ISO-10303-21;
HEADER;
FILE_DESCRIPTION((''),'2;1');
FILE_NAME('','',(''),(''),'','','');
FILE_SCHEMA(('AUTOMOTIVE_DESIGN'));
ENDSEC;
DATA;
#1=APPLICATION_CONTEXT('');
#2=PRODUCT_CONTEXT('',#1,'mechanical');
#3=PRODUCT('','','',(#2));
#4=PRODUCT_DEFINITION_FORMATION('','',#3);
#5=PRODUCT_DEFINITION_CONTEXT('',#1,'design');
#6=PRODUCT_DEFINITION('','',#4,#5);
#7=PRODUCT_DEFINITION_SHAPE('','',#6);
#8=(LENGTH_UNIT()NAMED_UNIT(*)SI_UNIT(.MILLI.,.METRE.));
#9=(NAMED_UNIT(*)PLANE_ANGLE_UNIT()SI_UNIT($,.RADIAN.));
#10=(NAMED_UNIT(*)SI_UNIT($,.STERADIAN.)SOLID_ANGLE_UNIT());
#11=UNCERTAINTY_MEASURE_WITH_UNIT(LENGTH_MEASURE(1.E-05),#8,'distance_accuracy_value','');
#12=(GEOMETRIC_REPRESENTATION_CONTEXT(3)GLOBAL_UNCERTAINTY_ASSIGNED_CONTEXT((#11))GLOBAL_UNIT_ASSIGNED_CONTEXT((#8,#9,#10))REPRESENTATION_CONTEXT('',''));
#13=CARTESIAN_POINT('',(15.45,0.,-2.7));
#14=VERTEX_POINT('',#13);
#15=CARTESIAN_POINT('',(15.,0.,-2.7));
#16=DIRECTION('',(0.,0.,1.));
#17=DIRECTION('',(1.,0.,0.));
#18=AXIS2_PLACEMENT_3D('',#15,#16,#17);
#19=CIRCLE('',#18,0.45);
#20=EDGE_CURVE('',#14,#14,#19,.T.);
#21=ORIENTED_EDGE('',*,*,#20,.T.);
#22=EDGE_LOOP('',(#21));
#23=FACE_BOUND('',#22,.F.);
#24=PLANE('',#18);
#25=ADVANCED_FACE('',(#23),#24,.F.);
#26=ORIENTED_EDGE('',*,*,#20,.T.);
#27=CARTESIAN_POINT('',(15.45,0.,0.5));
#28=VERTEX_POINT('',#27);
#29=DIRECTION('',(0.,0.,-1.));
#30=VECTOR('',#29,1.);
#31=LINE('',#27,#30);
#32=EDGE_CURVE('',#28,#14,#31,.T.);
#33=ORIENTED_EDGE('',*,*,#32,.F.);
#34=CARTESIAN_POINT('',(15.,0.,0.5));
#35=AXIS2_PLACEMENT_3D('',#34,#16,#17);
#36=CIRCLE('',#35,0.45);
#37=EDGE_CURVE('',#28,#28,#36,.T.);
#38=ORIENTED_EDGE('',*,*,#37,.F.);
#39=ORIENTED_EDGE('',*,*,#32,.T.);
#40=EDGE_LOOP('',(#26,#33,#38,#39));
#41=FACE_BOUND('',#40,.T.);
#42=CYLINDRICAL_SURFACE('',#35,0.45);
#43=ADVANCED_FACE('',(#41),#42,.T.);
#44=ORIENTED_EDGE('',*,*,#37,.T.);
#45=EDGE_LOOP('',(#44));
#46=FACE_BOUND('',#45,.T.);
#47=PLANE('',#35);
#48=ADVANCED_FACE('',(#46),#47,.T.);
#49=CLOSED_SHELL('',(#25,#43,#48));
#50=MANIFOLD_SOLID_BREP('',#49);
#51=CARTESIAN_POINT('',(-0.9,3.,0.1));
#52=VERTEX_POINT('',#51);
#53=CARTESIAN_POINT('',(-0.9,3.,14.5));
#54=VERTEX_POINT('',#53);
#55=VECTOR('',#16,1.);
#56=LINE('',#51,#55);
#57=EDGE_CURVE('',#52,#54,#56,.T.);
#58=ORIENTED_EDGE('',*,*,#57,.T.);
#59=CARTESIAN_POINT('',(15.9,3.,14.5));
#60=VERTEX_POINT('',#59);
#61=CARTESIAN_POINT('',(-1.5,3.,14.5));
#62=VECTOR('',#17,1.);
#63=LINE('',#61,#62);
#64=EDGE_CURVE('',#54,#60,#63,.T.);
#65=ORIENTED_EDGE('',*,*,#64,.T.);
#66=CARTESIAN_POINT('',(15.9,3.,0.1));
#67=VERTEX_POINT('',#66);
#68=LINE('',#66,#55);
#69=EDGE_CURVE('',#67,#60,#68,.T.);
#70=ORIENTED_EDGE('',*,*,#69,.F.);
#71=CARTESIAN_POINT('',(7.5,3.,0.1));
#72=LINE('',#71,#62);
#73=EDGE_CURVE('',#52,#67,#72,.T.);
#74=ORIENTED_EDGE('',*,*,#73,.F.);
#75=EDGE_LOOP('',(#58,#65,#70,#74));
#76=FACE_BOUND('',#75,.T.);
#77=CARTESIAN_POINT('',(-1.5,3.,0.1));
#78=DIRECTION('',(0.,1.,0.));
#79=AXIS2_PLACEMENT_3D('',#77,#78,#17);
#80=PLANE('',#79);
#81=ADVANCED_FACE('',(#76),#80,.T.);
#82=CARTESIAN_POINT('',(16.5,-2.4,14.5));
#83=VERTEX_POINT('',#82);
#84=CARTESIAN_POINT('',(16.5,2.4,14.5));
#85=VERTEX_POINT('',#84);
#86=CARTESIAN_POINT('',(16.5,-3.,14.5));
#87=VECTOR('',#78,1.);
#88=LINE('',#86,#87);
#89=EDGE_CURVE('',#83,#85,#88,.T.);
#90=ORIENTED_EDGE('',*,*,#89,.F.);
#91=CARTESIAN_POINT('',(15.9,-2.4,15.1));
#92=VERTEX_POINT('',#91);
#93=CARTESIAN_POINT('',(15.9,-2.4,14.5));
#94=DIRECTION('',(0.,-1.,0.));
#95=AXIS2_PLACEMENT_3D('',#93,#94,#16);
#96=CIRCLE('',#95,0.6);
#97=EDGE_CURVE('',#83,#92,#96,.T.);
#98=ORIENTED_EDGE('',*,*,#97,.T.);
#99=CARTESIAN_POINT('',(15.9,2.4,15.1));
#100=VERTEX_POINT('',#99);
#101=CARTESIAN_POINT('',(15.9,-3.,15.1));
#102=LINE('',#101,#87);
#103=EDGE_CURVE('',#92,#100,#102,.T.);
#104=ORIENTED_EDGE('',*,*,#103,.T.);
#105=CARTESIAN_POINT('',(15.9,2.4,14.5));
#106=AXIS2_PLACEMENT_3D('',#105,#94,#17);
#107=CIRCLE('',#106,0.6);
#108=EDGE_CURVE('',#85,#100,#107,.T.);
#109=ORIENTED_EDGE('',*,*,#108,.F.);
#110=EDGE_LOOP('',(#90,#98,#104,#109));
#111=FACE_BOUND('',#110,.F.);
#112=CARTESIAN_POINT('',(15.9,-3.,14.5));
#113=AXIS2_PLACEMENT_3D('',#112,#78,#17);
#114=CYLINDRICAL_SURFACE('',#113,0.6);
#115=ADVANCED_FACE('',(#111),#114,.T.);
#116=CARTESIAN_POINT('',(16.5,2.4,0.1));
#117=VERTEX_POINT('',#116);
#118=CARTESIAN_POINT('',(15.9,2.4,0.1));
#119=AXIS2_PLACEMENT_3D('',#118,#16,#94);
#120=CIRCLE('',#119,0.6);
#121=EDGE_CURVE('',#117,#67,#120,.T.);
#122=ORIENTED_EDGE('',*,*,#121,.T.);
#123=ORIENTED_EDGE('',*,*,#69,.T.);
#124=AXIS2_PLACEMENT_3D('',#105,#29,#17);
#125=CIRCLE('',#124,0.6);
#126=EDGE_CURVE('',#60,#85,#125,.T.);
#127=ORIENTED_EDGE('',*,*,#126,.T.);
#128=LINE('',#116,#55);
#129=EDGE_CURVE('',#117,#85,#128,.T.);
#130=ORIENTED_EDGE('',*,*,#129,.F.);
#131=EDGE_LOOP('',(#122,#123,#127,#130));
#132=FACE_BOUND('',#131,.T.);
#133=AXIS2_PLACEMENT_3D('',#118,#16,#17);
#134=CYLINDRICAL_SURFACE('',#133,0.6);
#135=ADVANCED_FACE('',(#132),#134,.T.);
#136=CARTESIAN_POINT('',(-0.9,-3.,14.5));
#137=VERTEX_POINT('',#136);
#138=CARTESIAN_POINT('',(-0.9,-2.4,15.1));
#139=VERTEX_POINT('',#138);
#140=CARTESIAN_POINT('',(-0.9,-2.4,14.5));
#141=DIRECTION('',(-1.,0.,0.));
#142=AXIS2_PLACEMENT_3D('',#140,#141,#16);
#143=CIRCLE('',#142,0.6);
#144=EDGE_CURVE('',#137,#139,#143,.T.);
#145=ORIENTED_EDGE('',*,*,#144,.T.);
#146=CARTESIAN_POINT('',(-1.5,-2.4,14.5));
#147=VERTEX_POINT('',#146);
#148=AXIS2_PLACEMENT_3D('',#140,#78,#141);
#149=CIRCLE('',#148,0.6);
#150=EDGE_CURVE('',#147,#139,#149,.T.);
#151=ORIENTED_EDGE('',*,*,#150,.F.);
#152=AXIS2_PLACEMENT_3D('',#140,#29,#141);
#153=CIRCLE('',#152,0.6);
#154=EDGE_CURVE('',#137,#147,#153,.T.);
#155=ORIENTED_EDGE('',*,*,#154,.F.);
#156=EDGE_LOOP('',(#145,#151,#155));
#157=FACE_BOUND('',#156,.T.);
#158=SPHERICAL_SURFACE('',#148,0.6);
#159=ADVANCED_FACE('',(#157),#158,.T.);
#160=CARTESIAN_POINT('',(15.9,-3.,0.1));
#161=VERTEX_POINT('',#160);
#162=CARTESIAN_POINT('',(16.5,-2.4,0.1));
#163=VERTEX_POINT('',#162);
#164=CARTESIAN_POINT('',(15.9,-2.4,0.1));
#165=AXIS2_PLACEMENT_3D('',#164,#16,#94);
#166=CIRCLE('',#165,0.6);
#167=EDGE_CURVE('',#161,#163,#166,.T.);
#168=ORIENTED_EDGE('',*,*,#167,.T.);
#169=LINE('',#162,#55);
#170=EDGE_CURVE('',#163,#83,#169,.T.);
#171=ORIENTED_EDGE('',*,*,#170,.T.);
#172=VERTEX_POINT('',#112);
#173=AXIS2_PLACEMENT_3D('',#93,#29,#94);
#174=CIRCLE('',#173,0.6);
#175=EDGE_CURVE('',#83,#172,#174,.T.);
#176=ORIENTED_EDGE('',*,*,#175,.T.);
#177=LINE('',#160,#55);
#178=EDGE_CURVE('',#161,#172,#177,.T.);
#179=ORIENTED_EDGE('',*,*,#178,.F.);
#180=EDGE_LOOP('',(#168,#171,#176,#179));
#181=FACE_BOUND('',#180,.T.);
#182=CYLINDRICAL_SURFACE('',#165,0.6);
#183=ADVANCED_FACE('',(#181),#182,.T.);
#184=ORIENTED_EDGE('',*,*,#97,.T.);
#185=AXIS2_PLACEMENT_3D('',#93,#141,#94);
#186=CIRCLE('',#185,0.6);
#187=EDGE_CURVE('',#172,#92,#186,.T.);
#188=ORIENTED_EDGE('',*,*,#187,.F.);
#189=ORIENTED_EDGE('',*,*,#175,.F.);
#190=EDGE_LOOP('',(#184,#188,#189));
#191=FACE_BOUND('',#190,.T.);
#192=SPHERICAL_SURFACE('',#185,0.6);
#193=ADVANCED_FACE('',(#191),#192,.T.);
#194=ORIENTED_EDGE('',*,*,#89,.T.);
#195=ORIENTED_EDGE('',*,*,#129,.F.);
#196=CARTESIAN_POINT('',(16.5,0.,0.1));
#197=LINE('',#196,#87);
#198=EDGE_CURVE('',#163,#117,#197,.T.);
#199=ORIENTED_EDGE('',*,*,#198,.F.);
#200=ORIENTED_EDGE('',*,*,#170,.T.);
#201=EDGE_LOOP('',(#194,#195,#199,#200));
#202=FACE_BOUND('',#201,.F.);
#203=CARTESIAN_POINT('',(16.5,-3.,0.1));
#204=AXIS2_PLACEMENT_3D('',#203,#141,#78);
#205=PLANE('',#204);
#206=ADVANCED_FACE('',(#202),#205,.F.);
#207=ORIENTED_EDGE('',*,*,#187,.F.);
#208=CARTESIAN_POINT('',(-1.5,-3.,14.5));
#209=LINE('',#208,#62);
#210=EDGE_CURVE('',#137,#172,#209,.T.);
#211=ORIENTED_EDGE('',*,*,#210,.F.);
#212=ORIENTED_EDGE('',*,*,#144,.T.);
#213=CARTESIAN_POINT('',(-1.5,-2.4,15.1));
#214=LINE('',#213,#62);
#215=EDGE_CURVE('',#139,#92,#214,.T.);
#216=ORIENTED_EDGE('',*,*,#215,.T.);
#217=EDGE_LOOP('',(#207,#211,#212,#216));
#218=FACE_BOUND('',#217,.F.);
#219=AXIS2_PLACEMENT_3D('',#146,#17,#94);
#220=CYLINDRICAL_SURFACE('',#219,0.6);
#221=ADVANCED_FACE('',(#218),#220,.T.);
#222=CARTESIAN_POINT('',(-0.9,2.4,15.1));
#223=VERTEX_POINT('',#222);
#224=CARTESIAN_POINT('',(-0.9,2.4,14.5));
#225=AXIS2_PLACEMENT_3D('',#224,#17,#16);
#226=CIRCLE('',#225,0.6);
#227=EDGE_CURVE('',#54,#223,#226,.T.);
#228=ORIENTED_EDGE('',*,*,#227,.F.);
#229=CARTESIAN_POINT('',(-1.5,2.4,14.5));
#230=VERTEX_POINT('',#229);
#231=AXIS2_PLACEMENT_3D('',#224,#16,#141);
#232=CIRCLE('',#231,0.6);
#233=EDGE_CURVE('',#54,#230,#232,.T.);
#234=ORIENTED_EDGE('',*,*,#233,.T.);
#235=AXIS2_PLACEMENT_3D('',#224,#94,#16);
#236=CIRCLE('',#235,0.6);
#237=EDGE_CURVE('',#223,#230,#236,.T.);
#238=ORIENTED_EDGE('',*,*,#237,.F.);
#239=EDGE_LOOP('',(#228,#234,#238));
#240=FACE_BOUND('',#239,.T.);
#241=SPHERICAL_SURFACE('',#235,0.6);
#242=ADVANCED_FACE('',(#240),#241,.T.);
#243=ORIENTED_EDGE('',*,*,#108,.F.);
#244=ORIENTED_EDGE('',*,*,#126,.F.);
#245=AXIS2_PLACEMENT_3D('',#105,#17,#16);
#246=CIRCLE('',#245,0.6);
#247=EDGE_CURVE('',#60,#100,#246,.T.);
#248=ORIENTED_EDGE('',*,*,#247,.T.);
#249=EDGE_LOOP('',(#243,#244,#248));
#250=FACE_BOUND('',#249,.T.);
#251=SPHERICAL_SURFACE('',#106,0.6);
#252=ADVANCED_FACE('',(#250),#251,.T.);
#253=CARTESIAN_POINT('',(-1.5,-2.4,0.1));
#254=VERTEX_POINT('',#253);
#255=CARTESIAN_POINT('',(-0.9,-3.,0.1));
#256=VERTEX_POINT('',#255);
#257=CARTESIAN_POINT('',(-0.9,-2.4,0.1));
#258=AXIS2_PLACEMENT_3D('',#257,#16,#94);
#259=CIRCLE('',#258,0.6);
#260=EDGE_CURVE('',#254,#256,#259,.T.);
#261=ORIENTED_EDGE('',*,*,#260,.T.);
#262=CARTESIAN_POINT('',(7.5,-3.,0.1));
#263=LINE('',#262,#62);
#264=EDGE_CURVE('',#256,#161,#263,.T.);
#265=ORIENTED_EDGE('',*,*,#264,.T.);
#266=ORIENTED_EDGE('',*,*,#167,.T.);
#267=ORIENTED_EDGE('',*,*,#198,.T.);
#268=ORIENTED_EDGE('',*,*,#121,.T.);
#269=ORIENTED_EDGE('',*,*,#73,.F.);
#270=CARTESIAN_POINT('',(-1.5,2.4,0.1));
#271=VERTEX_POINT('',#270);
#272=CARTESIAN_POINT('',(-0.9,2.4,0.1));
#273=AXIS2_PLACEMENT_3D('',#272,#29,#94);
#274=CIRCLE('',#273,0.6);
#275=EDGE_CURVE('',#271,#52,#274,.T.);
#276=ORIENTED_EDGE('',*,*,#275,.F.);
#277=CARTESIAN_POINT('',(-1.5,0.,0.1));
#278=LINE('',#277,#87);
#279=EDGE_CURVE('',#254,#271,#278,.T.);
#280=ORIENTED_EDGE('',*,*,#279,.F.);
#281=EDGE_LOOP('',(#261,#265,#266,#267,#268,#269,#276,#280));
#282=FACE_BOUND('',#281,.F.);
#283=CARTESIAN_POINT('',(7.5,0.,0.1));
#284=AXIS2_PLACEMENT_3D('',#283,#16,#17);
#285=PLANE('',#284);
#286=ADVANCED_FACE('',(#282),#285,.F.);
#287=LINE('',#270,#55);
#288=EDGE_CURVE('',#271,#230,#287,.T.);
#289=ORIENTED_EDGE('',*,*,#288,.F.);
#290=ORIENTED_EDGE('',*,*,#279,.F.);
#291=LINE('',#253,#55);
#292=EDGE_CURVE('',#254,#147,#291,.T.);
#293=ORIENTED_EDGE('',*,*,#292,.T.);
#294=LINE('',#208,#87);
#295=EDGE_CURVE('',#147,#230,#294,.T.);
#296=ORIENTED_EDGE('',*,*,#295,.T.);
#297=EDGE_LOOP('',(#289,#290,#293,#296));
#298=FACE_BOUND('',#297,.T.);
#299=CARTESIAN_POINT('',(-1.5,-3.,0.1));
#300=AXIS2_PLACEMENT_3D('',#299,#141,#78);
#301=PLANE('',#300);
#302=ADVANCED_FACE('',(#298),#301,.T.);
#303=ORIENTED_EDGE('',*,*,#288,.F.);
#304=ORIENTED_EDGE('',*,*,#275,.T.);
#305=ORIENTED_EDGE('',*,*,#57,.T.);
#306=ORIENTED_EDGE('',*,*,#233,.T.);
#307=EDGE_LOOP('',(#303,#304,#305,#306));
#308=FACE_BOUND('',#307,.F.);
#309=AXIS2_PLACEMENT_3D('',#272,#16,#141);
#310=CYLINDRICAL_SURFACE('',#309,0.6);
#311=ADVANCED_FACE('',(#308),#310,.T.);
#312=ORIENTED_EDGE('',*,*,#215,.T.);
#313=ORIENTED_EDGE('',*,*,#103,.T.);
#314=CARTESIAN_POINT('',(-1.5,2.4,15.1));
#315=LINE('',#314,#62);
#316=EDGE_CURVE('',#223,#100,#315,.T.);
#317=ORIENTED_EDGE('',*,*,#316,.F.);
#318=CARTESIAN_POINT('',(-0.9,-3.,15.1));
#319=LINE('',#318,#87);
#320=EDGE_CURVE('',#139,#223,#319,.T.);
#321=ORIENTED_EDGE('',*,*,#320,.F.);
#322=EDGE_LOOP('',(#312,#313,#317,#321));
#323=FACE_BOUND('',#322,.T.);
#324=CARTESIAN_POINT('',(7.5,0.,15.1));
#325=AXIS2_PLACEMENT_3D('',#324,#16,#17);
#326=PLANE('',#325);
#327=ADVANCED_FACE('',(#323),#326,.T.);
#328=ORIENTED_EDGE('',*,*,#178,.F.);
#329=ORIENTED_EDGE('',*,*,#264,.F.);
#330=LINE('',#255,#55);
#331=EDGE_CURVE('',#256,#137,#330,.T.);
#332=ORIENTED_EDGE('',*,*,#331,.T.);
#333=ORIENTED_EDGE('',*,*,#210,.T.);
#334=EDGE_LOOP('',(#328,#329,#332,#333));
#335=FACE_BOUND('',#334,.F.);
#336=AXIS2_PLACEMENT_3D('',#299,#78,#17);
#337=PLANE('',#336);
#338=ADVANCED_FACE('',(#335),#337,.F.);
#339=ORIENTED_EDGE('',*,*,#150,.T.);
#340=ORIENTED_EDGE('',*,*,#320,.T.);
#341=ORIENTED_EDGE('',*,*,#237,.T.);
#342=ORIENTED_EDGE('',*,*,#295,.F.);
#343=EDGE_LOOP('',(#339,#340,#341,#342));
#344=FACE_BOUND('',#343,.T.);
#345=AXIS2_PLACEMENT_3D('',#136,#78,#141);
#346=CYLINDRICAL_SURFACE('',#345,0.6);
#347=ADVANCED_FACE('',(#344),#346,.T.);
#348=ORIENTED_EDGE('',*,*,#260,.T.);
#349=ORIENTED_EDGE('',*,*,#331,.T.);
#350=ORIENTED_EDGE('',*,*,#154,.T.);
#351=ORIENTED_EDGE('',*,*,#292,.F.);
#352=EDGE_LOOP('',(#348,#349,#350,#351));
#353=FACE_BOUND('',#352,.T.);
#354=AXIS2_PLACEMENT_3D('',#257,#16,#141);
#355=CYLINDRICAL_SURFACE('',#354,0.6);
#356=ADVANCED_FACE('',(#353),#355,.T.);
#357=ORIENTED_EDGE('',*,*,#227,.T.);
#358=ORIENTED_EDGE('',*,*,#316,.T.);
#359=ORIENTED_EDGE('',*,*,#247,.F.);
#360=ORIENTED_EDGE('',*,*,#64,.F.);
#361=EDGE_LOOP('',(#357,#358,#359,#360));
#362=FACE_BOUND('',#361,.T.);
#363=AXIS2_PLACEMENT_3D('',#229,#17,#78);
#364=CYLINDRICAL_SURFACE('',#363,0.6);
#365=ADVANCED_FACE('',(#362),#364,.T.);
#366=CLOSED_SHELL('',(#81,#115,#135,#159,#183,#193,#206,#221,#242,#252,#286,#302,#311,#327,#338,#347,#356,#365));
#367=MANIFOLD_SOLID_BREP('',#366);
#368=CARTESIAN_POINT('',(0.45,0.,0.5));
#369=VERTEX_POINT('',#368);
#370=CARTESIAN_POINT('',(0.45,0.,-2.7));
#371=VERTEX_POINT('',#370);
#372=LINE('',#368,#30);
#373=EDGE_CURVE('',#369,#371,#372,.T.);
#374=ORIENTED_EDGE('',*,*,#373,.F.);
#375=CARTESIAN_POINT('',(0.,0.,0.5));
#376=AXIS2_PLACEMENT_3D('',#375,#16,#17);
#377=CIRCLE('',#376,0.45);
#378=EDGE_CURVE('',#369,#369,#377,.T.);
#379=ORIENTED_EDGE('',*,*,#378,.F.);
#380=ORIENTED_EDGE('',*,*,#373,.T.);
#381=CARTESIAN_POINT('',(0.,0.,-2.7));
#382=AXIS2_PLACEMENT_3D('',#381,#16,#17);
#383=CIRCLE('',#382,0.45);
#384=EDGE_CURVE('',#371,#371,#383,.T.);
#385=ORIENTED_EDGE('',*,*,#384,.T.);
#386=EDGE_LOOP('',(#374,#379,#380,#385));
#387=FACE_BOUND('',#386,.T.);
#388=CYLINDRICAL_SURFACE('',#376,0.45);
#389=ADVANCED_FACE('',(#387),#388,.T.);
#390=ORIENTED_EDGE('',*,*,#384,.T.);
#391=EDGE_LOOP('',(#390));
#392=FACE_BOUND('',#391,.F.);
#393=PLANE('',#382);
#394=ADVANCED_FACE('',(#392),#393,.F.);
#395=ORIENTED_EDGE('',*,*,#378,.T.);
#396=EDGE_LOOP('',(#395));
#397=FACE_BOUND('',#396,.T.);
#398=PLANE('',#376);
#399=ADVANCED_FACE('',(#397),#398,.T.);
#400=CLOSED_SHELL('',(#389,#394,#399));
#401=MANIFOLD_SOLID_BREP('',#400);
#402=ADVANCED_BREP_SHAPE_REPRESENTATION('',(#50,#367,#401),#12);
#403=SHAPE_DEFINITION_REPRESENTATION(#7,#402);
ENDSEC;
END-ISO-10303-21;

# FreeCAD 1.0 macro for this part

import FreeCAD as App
import Part
import Sketcher
from FreeCAD import Vector
Q = App.Units.Quantity


def edges_at(feature, points):
    """Names of the edges that pass closest to the given points."""
    edges = feature.Shape.Edges
    near = lambda p: min(range(len(edges)), key=lambda i: edges[i].distToShape(Part.Vertex(*p))[0])
    return sorted({f"Edge{near(p) + 1}" for p in points})

doc = App.newDocument("Part")
body = doc.addObject("PartDesign::Body", "Body")

# Sketch on XY plane
sketch1 = body.newObject("Sketcher::SketchObject", "Sketch")
sketch1.AttachmentSupport = (doc.getObject("XY_Plane"), [""])
sketch1.MapMode = "FlatFace"
sketch1.AttachmentOffset = App.Placement(Vector(0, 0, 0.1), App.Rotation())
sketch1.addGeometry([
    Part.LineSegment(Vector(-2, 3, 0), Vector(-2, -3, 0)),
    Part.LineSegment(Vector(-2, -3, 0), Vector(16, -3, 0)),
    Part.LineSegment(Vector(16, -3, 0), Vector(16, 3, 0)),
    Part.LineSegment(Vector(16, 3, 0), Vector(-2, 3, 0)),
], False)
sketch1.addConstraint([
    Sketcher.Constraint("Coincident", 0, 2, 1, 1),
    Sketcher.Constraint("Coincident", 1, 2, 2, 1),
    Sketcher.Constraint("Coincident", 2, 2, 3, 1),
    Sketcher.Constraint("Coincident", 3, 2, 0, 1),
    Sketcher.Constraint("Vertical", 0),
    Sketcher.Constraint("Horizontal", 1),
    Sketcher.Constraint("Vertical", 2),
    Sketcher.Constraint("Horizontal", 3),
    Sketcher.Constraint("DistanceX", 1, 1, 1, 2, Q("18 mm")),
    Sketcher.Constraint("DistanceY", 0, 2, 0, 1, Q("6 mm")),
    Sketcher.Constraint("DistanceY", 0, 2, -1, 1, Q("3 mm")),
    Sketcher.Constraint("DistanceX", 0, 2, -1, 1, Q("1.5 mm")),
])
pad1 = body.newObject("PartDesign::Pad", "Pad")
pad1.Profile = sketch1
pad1.Length = 15
doc.recompute()

fillet = body.newObject("PartDesign::Fillet", "Fillet")
fillet.Base = (pad1, edges_at(pad1, [
    (-1.5, 0, 15.1),
    (-1.5, -3, 7.6),
    (7.5, -3, 15.1),
    (16.5, -3, 7.6),
    (16.5, 0, 15.1),
    (16.5, 3, 7.6),
    (7.5, 3, 15.1),
    (-1.5, 3, 7.6),
]))
fillet.Radius = 0.6
body2 = doc.addObject("PartDesign::Body", "Body001")
body2.AllowCompound = True

# Sketch on XY plane
sketch2 = body2.newObject("Sketcher::SketchObject", "Sketch001")
sketch2.AttachmentSupport = (doc.getObject("XY_Plane001"), [""])
sketch2.MapMode = "FlatFace"
sketch2.AttachmentOffset = App.Placement(Vector(0, 0, 0.5), App.Rotation())
sketch2.addGeometry([
    Part.Circle(Vector(0, 0, 0), Vector(0, 0, 1), 0.45),
    Part.Circle(Vector(15, 0, 0), Vector(0, 0, 1), 0.45),
], False)
sketch2.addConstraint([
    Sketcher.Constraint("Coincident", 0, 3, -1, 1),
    Sketcher.Constraint("Equal", 0, 1),
    Sketcher.Constraint("PointOnObject", 1, 3, -1),
    Sketcher.Constraint("Diameter", 0, Q("0.9 mm")),
    Sketcher.Constraint("DistanceX", -1, 1, 1, 3, Q("15 mm")),
])
pad2 = body2.newObject("PartDesign::Pad", "Pad001")
pad2.Profile = sketch2
pad2.Length = 3.2
pad2.Reversed = True

doc.recompute()
